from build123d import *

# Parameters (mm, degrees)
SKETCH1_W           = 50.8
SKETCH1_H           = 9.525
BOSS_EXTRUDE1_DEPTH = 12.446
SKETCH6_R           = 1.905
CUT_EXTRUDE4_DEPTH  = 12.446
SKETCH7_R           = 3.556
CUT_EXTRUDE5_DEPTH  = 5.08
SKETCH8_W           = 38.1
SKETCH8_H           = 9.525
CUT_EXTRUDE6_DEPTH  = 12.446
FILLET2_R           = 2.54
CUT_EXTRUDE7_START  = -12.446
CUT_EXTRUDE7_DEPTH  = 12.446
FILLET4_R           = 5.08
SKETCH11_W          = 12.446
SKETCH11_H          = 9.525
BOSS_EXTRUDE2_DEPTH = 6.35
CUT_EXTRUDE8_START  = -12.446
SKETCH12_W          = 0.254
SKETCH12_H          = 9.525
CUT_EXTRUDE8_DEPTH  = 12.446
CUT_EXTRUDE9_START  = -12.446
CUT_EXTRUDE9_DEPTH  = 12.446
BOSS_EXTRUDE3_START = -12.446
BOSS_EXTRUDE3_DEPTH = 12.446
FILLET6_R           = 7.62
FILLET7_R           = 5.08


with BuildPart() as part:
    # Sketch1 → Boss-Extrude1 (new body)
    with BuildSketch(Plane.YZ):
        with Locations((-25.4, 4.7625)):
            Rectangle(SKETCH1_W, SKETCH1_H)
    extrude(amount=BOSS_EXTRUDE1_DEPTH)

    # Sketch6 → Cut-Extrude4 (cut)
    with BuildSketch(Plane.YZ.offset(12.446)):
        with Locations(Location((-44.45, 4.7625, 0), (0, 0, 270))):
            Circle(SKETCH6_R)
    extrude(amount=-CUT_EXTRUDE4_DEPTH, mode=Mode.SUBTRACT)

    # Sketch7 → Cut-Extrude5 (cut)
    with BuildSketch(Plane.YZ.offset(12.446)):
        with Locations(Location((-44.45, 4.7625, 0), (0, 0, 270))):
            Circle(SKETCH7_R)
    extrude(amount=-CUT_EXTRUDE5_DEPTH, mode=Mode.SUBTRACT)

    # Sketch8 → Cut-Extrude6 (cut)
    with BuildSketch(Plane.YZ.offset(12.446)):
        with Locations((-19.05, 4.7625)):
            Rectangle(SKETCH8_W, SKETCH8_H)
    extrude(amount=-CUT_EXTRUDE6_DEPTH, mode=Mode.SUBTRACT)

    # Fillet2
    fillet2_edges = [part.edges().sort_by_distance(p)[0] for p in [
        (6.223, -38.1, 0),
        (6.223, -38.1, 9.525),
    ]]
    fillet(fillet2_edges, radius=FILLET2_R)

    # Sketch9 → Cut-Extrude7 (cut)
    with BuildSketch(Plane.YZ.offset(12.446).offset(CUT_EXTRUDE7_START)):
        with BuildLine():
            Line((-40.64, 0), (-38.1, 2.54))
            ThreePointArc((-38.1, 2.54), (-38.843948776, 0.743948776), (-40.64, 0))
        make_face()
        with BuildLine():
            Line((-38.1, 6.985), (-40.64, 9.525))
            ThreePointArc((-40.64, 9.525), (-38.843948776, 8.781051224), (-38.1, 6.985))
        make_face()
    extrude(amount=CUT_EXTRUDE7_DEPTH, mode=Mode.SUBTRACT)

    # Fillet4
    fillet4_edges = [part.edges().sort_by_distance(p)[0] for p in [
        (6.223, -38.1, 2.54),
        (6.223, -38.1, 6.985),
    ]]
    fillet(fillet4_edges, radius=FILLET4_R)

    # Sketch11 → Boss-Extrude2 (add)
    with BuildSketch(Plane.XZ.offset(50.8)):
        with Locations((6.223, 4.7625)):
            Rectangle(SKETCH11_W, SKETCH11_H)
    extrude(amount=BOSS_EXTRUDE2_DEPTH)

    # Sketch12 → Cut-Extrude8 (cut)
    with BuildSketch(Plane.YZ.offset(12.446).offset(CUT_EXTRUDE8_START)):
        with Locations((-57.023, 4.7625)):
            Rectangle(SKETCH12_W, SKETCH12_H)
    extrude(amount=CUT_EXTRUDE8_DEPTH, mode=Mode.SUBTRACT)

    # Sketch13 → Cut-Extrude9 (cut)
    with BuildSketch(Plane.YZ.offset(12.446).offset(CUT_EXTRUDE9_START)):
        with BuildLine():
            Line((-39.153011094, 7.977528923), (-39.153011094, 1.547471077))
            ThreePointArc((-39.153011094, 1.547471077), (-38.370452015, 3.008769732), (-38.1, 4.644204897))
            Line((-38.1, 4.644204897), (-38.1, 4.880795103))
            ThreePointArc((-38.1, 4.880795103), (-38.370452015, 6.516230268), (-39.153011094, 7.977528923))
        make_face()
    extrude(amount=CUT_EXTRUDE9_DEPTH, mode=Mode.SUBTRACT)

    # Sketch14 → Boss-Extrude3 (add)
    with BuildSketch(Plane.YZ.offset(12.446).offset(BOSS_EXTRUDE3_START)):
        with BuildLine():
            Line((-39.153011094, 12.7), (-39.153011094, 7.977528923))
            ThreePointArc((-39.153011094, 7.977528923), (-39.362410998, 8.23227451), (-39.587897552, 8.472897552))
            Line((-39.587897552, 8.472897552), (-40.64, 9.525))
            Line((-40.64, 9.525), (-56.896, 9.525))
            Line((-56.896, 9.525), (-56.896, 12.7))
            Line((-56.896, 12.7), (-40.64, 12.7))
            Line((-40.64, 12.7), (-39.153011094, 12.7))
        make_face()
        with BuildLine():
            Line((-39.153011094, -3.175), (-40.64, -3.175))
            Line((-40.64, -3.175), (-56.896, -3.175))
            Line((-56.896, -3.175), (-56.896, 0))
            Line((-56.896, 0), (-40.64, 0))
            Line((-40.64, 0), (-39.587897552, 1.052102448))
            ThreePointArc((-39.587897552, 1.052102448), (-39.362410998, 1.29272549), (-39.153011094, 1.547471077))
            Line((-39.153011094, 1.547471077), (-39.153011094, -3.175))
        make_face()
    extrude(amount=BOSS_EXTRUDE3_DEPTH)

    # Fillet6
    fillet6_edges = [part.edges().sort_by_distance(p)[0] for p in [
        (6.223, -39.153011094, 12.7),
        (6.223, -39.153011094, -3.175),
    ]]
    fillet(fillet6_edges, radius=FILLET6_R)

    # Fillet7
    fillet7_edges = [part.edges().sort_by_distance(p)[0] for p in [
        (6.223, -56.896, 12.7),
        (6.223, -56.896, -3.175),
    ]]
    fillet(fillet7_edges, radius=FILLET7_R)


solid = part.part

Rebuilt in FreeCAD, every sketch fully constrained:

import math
import FreeCAD as App
import Part
import Sketcher
Q = App.Units.Quantity


def edges_at(feature, points):
    """Names of the edges that pass closest to the given points."""
    edges = feature.Shape.Edges
    near = lambda p: min(range(len(edges)), key=lambda i: edges[i].distToShape(Part.Vertex(*p))[0])
    return sorted({f"Edge{near(p) + 1}" for p in points})


def add_polygon(sketch, points):
    """Adds a closed chain of lines whose ends are joined by coincident constraints."""
    first, n = sketch.GeometryCount, len(points)
    for a, b in zip(points, points[1:] + points[:1]):
        sketch.addGeometry(Part.LineSegment(App.Vector(*a, 0), App.Vector(*b, 0)), False)
    for i in range(n):
        sketch.addConstraint(Sketcher.Constraint("Coincident", first + i, 2, first + (i + 1) % n, 1))

doc = App.newDocument("Part")
body = doc.addObject("PartDesign::Body", "Body")

sketch1 = doc.addObject("Sketcher::SketchObject", "Sketch")
body.addObject(sketch1)
sketch1.AttachmentSupport = (doc.YZ_Plane, [""])
sketch1.MapMode = "FlatFace"
add_polygon(sketch1, [(-51, 10), (-51, 0), (0, 0), (0, 10)])
sketch1.addConstraint(Sketcher.Constraint("Vertical", 0))
sketch1.addConstraint(Sketcher.Constraint("Horizontal", 1))
sketch1.addConstraint(Sketcher.Constraint("Vertical", 2))
sketch1.addConstraint(Sketcher.Constraint("Horizontal", 3))
sketch1.addConstraint(Sketcher.Constraint("Coincident", 1, 2, -1, 1))
sketch1.addConstraint(Sketcher.Constraint("DistanceX", 1, 1, 1, 2, Q("2 in")))
sketch1.addConstraint(Sketcher.Constraint("DistanceY", 0, 2, 0, 1, Q("0.375 in")))
pad1 = doc.addObject("PartDesign::Pad", "Pad")
body.addObject(pad1)
pad1.Profile = sketch1
pad1.Length = Q("0.49 in")

sketch2 = doc.addObject("Sketcher::SketchObject", "Sketch001")
body.addObject(sketch2)
sketch2.AttachmentSupport = (doc.YZ_Plane, [""])
sketch2.MapMode = "FlatFace"
sketch2.AttachmentOffset = App.Placement(App.Vector(0, 0, 0.49 * 25.4), App.Rotation())
sketch2.addGeometry(Part.Circle(App.Vector(-44.5, 4.8, 0), App.Vector(0, 0, 1), 1.9), False)
sketch2.addConstraint(Sketcher.Constraint("Diameter", 0, Q("0.15 in")))
sketch2.addConstraint(Sketcher.Constraint("DistanceX", 0, 3, -1, 1, Q("1.75 in")))
sketch2.addConstraint(Sketcher.Constraint("DistanceY", -1, 1, 0, 3, Q("0.1875 in")))
pocket1 = doc.addObject("PartDesign::Pocket", "Pocket")
body.addObject(pocket1)
pocket1.Profile = sketch2
pocket1.Length = Q("0.49 in")

sketch3 = doc.addObject("Sketcher::SketchObject", "Sketch002")
body.addObject(sketch3)
sketch3.AttachmentSupport = (doc.YZ_Plane, [""])
sketch3.MapMode = "FlatFace"
sketch3.AttachmentOffset = App.Placement(App.Vector(0, 0, 0.49 * 25.4), App.Rotation())
sketch3.addGeometry(Part.Circle(App.Vector(-44.5, 4.8, 0), App.Vector(0, 0, 1), 3.6), False)
sketch3.addConstraint(Sketcher.Constraint("Diameter", 0, Q("0.28 in")))
sketch3.addConstraint(Sketcher.Constraint("DistanceX", 0, 3, -1, 1, Q("1.75 in")))
sketch3.addConstraint(Sketcher.Constraint("DistanceY", -1, 1, 0, 3, Q("0.1875 in")))
pocket2 = doc.addObject("PartDesign::Pocket", "Pocket001")
body.addObject(pocket2)
pocket2.Profile = sketch3
pocket2.Length = Q("0.2 in")

sketch4 = doc.addObject("Sketcher::SketchObject", "Sketch003")
body.addObject(sketch4)
sketch4.AttachmentSupport = (doc.YZ_Plane, [""])
sketch4.MapMode = "FlatFace"
sketch4.AttachmentOffset = App.Placement(App.Vector(0, 0, 0.49 * 25.4), App.Rotation())
add_polygon(sketch4, [(-38, 10), (-38, 0), (0, 0), (0, 10)])
sketch4.addConstraint(Sketcher.Constraint("Vertical", 0))
sketch4.addConstraint(Sketcher.Constraint("Horizontal", 1))
sketch4.addConstraint(Sketcher.Constraint("Vertical", 2))
sketch4.addConstraint(Sketcher.Constraint("Horizontal", 3))
sketch4.addConstraint(Sketcher.Constraint("Coincident", 1, 2, -1, 1))
sketch4.addConstraint(Sketcher.Constraint("DistanceX", 1, 1, 1, 2, Q("1.5 in")))
sketch4.addConstraint(Sketcher.Constraint("DistanceY", 0, 2, 0, 1, Q("0.375 in")))
pocket3 = doc.addObject("PartDesign::Pocket", "Pocket002")
body.addObject(pocket3)
pocket3.Profile = sketch4
pocket3.Length = Q("0.49 in")
doc.recompute()

fillet = doc.addObject("PartDesign::Fillet", "Fillet")
body.addObject(fillet)
fillet.Base = (pocket3, edges_at(pocket3, [(6.223, -38.1, 0), (6.223, -38.1, 9.525)]))
fillet.Radius = Q("0.1 in")

sketch5 = doc.addObject("Sketcher::SketchObject", "Sketch004")
body.addObject(sketch5)
sketch5.AttachmentSupport = (doc.YZ_Plane, [""])
sketch5.MapMode = "FlatFace"
sketch5.addGeometry(Part.LineSegment(App.Vector(-38.1, 2.5, 0), App.Vector(-40.6, 0, 0)), False)
sketch5.addGeometry(Part.ArcOfCircle(Part.Circle(App.Vector(-40.6, 2.5, 0), App.Vector(0, 0, 1), 2.5), math.radians(-90), math.radians(0)), False)
sketch5.addGeometry(Part.LineSegment(App.Vector(-40.6, 9.5, 0), App.Vector(-38.1, 7, 0)), False)
sketch5.addGeometry(Part.ArcOfCircle(Part.Circle(App.Vector(-40.6, 7, 0), App.Vector(0, 0, 1), 2.5), math.radians(0), math.radians(90)), False)
sketch5.addConstraint(Sketcher.Constraint("Coincident", 0, 1, 1, 2))
sketch5.addConstraint(Sketcher.Constraint("Coincident", 1, 1, 0, 2))
sketch5.addConstraint(Sketcher.Constraint("Coincident", 2, 1, 3, 2))
sketch5.addConstraint(Sketcher.Constraint("Coincident", 3, 1, 2, 2))
sketch5.addConstraint(Sketcher.Constraint("Equal", 1, 3))
sketch5.addConstraint(Sketcher.Constraint("PointOnObject", 1, 1, -1))
sketch5.addConstraint(Sketcher.Constraint("Perpendicular", 0, 2))
sketch5.addConstraint(Sketcher.Constraint("Horizontal", 1, 3, 0, 1))
sketch5.addConstraint(Sketcher.Constraint("Vertical", 1, 3, 3, 3))
sketch5.addConstraint(Sketcher.Constraint("Vertical", 3, 3, 1, 1))
sketch5.addConstraint(Sketcher.Constraint("Vertical", 1, 1, 2, 1))
sketch5.addConstraint(Sketcher.Constraint("Radius", 1, Q("0.1 in")))
sketch5.addConstraint(Sketcher.Constraint("DistanceX", 1, 3, -1, 1, Q("1.6 in")))
sketch5.addConstraint(Sketcher.Constraint("DistanceY", -1, 1, 3, 3, Q("0.275 in")))
pocket4 = doc.addObject("PartDesign::Pocket", "Pocket003")
body.addObject(pocket4)
pocket4.Profile = sketch5
pocket4.Length = Q("0.49 in")
pocket4.Reversed = True
doc.recompute()

fillet2 = doc.addObject("PartDesign::Fillet", "Fillet001")
body.addObject(fillet2)
fillet2.Base = (pocket4, edges_at(pocket4, [(6.223, -38.1, 2.54), (6.223, -38.1, 6.985)]))
fillet2.Radius = Q("0.2 in")

sketch6 = doc.addObject("Sketcher::SketchObject", "Sketch005")
body.addObject(sketch6)
sketch6.AttachmentSupport = (doc.XZ_Plane, [""])
sketch6.MapMode = "FlatFace"
sketch6.AttachmentOffset = App.Placement(App.Vector(0, 0, 2 * 25.4), App.Rotation())
add_polygon(sketch6, [(0, 10), (0, 0), (12, 0), (12, 10)])
sketch6.addConstraint(Sketcher.Constraint("Vertical", 0))
sketch6.addConstraint(Sketcher.Constraint("Horizontal", 1))
sketch6.addConstraint(Sketcher.Constraint("Vertical", 2))
sketch6.addConstraint(Sketcher.Constraint("Horizontal", 3))
sketch6.addConstraint(Sketcher.Constraint("Coincident", 0, 2, -1, 1))
sketch6.addConstraint(Sketcher.Constraint("DistanceX", 1, 1, 1, 2, Q("0.49 in")))
sketch6.addConstraint(Sketcher.Constraint("DistanceY", 0, 2, 0, 1, Q("0.375 in")))
pad2 = doc.addObject("PartDesign::Pad", "Pad001")
body.addObject(pad2)
pad2.Profile = sketch6
pad2.Length = Q("0.25 in")

sketch7 = doc.addObject("Sketcher::SketchObject", "Sketch006")
body.addObject(sketch7)
sketch7.AttachmentSupport = (doc.YZ_Plane, [""])
sketch7.MapMode = "FlatFace"
add_polygon(sketch7, [(-57.15, 9.53), (-57.15, 0), (-56.9, 0), (-56.9, 9.53)])
sketch7.addConstraint(Sketcher.Constraint("Vertical", 0))
sketch7.addConstraint(Sketcher.Constraint("Horizontal", 1))
sketch7.addConstraint(Sketcher.Constraint("Vertical", 2))
sketch7.addConstraint(Sketcher.Constraint("Horizontal", 3))
sketch7.addConstraint(Sketcher.Constraint("PointOnObject", 0, 2, -1))
sketch7.addConstraint(Sketcher.Constraint("DistanceX", 1, 1, 1, 2, Q("0.01 in")))
sketch7.addConstraint(Sketcher.Constraint("DistanceY", 0, 2, 0, 1, Q("0.375 in")))
sketch7.addConstraint(Sketcher.Constraint("DistanceX", 0, 2, -1, 1, Q("2.25 in")))
pocket5 = doc.addObject("PartDesign::Pocket", "Pocket004")
body.addObject(pocket5)
pocket5.Profile = sketch7
pocket5.Length = Q("0.49 in")
pocket5.Reversed = True

sketch8 = doc.addObject("Sketcher::SketchObject", "Sketch007")
body.addObject(sketch8)
sketch8.AttachmentSupport = (doc.YZ_Plane, [""])
sketch8.MapMode = "FlatFace"
sketch8.addGeometry(Part.LineSegment(App.Vector(-39.15, 7.98, 0), App.Vector(-39.15, 1.55, 0)), False)
sketch8.addGeometry(Part.ArcOfCircle(Part.Circle(App.Vector(-43.18, 4.64, 0), App.Vector(0, 0, 1), 5.08), math.radians(-38), math.radians(0)), False)
sketch8.addGeometry(Part.LineSegment(App.Vector(-38.1, 4.64, 0), App.Vector(-38.1, 4.88, 0)), False)
sketch8.addGeometry(Part.ArcOfCircle(Part.Circle(App.Vector(-43.18, 4.88, 0), App.Vector(0, 0, 1), 5.08), math.radians(0), math.radians(38)), False)
sketch8.addConstraint(Sketcher.Constraint("Coincident", 0, 2, 1, 1))
sketch8.addConstraint(Sketcher.Constraint("Tangent", 1, 2, 2, 1))
sketch8.addConstraint(Sketcher.Constraint("Tangent", 2, 2, 3, 1))
sketch8.addConstraint(Sketcher.Constraint("Coincident", 3, 2, 0, 1))
sketch8.addConstraint(Sketcher.Constraint("Vertical", 0))
sketch8.addConstraint(Sketcher.Constraint("Vertical", 2))
sketch8.addConstraint(Sketcher.Constraint("Equal", 1, 3))
sketch8.addConstraint(Sketcher.Constraint("Radius", 1, Q("0.2 in")))
sketch8.addConstraint(Sketcher.Constraint("DistanceX", 1, 3, -1, 1, Q("1.7 in")))
sketch8.addConstraint(Sketcher.Constraint("DistanceY", 2, 1, 2, 2, Q("0.23659 mm")))
sketch8.addConstraint(Sketcher.Constraint("DistanceY", 0, 2, 0, 1, Q("6.430058 mm")))
sketch8.addConstraint(Sketcher.Constraint("DistanceY", -1, 1, 0, 2, Q("1.547471 mm")))
pocket6 = doc.addObject("PartDesign::Pocket", "Pocket005")
body.addObject(pocket6)
pocket6.Profile = sketch8
pocket6.Length = Q("0.49 in")
pocket6.Reversed = True

sketch9 = doc.addObject("Sketcher::SketchObject", "Sketch008")
body.addObject(sketch9)
sketch9.AttachmentSupport = (doc.YZ_Plane, [""])
sketch9.MapMode = "FlatFace"
sketch9.addGeometry(Part.LineSegment(App.Vector(-39.2, 8, 0), App.Vector(-39.2, 12.7, 0)), False)
sketch9.addGeometry(Part.LineSegment(App.Vector(-39.2, 12.7, 0), App.Vector(-56.9, 12.7, 0)), False)
sketch9.addGeometry(Part.LineSegment(App.Vector(-56.9, 12.7, 0), App.Vector(-56.9, 9.5, 0)), False)
sketch9.addGeometry(Part.LineSegment(App.Vector(-56.9, 9.5, 0), App.Vector(-40.6, 9.5, 0)), False)
sketch9.addGeometry(Part.LineSegment(App.Vector(-40.6, 9.5, 0), App.Vector(-39.6, 8.5, 0)), False)
sketch9.addGeometry(Part.ArcOfCircle(Part.Circle(App.Vector(-43.2, 4.9, 0), App.Vector(0, 0, 1), 5.1), math.radians(37.56), math.radians(45)), False)
sketch9.addGeometry(Part.LineSegment(App.Vector(-56.9, -3.2, 0), App.Vector(-39.2, -3.2, 0)), False)
sketch9.addGeometry(Part.LineSegment(App.Vector(-39.2, -3.2, 0), App.Vector(-39.2, 1.5, 0)), False)
sketch9.addGeometry(Part.ArcOfCircle(Part.Circle(App.Vector(-43.2, 4.6, 0), App.Vector(0, 0, 1), 5.1), math.radians(-45), math.radians(-37.56)), False)
sketch9.addGeometry(Part.LineSegment(App.Vector(-39.6, 1.1, 0), App.Vector(-40.6, 0, 0)), False)
sketch9.addGeometry(Part.LineSegment(App.Vector(-40.6, 0, 0), App.Vector(-56.9, 0, 0)), False)
sketch9.addGeometry(Part.LineSegment(App.Vector(-56.9, 0, 0), App.Vector(-56.9, -3.2, 0)), False)
sketch9.addConstraint(Sketcher.Constraint("Coincident", 0, 2, 1, 1))
sketch9.addConstraint(Sketcher.Constraint("Coincident", 1, 2, 2, 1))
sketch9.addConstraint(Sketcher.Constraint("Coincident", 2, 2, 3, 1))
sketch9.addConstraint(Sketcher.Constraint("Coincident", 3, 2, 4, 1))
sketch9.addConstraint(Sketcher.Constraint("Tangent", 4, 2, 5, 2))
sketch9.addConstraint(Sketcher.Constraint("Coincident", 5, 1, 0, 1))
sketch9.addConstraint(Sketcher.Constraint("Coincident", 6, 2, 7, 1))
sketch9.addConstraint(Sketcher.Constraint("Coincident", 7, 2, 8, 2))
sketch9.addConstraint(Sketcher.Constraint("Tangent", 8, 1, 9, 1))
sketch9.addConstraint(Sketcher.Constraint("Coincident", 9, 2, 10, 1))
sketch9.addConstraint(Sketcher.Constraint("Coincident", 10, 2, 11, 1))
sketch9.addConstraint(Sketcher.Constraint("Coincident", 11, 2, 6, 1))
sketch9.addConstraint(Sketcher.Constraint("Vertical", 0))
sketch9.addConstraint(Sketcher.Constraint("Horizontal", 1))
sketch9.addConstraint(Sketcher.Constraint("Vertical", 2))
sketch9.addConstraint(Sketcher.Constraint("Horizontal", 3))
sketch9.addConstraint(Sketcher.Constraint("Horizontal", 6))
sketch9.addConstraint(Sketcher.Constraint("Vertical", 7))
sketch9.addConstraint(Sketcher.Constraint("Horizontal", 10))
sketch9.addConstraint(Sketcher.Constraint("Vertical", 11))
sketch9.addConstraint(Sketcher.Constraint("Equal", 5, 8))
sketch9.addConstraint(Sketcher.Constraint("PointOnObject", 9, 2, -1))
sketch9.addConstraint(Sketcher.Constraint("Perpendicular", 4, 9))
sketch9.addConstraint(Sketcher.Constraint("Vertical", 5, 3, 8, 3))
sketch9.addConstraint(Sketcher.Constraint("Vertical", 5, 1, 6, 2))
sketch9.addConstraint(Sketcher.Constraint("Vertical", 4, 2, 8, 1))
sketch9.addConstraint(Sketcher.Constraint("Vertical", 3, 2, 9, 2))
sketch9.addConstraint(Sketcher.Constraint("Vertical", 2, 2, 10, 2))
sketch9.addConstraint(Sketcher.Constraint("Equal", 0, 7))
sketch9.addConstraint(Sketcher.Constraint("Radius", 5, Q("0.2 in")))
sketch9.addConstraint(Sketcher.Constraint("DistanceX", 3, 1, 3, 2, Q("0.64 in")))
sketch9.addConstraint(Sketcher.Constraint("DistanceX", 5, 3, -1, 1, Q("1.7 in")))
sketch9.addConstraint(Sketcher.Constraint("DistanceY", -1, 1, 0, 2, Q("0.5 in")))
sketch9.addConstraint(Sketcher.Constraint("DistanceX", 3, 2, -1, 1, Q("1.6 in")))
sketch9.addConstraint(Sketcher.Constraint("DistanceY", 2, 2, 2, 1, Q("0.125 in")))
sketch9.addConstraint(Sketcher.Constraint("DistanceX", 1, 2, 1, 1, Q("17.742989 mm")))
pad3 = doc.addObject("PartDesign::Pad", "Pad002")
body.addObject(pad3)
pad3.Profile = sketch9
pad3.Length = Q("0.49 in")
doc.recompute()

fillet3 = doc.addObject("PartDesign::Fillet", "Fillet002")
body.addObject(fillet3)
fillet3.Base = (pad3, edges_at(pad3, [(6.223, -39.153, 12.7), (6.223, -39.153, -3.175)]))
fillet3.Radius = Q("0.3 in")
doc.recompute()

fillet4 = doc.addObject("PartDesign::Fillet", "Fillet003")
body.addObject(fillet4)
fillet4.Base = (fillet3, edges_at(fillet3, [(6.223, -56.896, 12.7), (6.223, -56.896, -3.175)]))
fillet4.Radius = Q("0.2 in")

doc.recompute()
